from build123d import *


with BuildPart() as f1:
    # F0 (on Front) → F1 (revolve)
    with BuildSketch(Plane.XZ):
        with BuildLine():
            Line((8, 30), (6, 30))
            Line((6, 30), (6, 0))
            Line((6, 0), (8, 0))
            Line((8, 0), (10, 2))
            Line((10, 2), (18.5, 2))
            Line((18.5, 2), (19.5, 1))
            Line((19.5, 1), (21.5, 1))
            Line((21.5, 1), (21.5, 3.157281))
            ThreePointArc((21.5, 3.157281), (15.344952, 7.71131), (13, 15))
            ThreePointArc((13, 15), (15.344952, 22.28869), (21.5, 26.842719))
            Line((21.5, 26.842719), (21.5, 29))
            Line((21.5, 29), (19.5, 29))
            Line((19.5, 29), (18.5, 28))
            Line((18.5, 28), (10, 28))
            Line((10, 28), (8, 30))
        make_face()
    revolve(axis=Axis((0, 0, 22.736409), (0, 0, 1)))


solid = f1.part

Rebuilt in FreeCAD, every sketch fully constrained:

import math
import FreeCAD as App
import Part
import Sketcher

doc = App.newDocument("Part")
params = doc.addObject("Spreadsheet::Sheet", "Params")
for row, (alias, value) in enumerate([
    ("sketch1_radius", "12.499999 mm"),
    ("sketch1_width", "2 mm"),
    ("sketch1_height", "30 mm"),
    ("sketch1_width2", "8.5 mm"),
    ("revolution_angle", "360 deg"),
], start=1):
    params.set(f"A{row}", alias)
    params.set(f"B{row}", "=" + value)
    params.setAlias(f"B{row}", alias)

body = doc.addObject("PartDesign::Body", "Body")

sketch1 = body.newObject("Sketcher::SketchObject", "Sketch")
sketch1.AttachmentSupport = (doc.getObject("XZ_Plane"), [""])
sketch1.MapMode = "FlatFace"
sketch1.addGeometry(Part.LineSegment(App.Vector(8, 30, 0), App.Vector(6, 30, 0)), False)
sketch1.addGeometry(Part.LineSegment(App.Vector(6, 30, 0), App.Vector(6, 0, 0)), False)
sketch1.addGeometry(Part.LineSegment(App.Vector(6, 0, 0), App.Vector(8, 0, 0)), False)
sketch1.addGeometry(Part.LineSegment(App.Vector(8, 0, 0), App.Vector(10, 2, 0)), False)
sketch1.addGeometry(Part.LineSegment(App.Vector(10, 2, 0), App.Vector(18.5, 2, 0)), False)
sketch1.addGeometry(Part.LineSegment(App.Vector(18.5, 2, 0), App.Vector(19.5, 1, 0)), False)
sketch1.addGeometry(Part.LineSegment(App.Vector(19.5, 1, 0), App.Vector(21.5, 1, 0)), False)
sketch1.addGeometry(Part.LineSegment(App.Vector(21.5, 1, 0), App.Vector(21.5, 3.2, 0)), False)
sketch1.addGeometry(Part.ArcOfCircle(Part.Circle(App.Vector(25.5, 15, 0), App.Vector(0, 0, 1), 12.5), math.radians(180), math.radians(251)), False)
sketch1.addGeometry(Part.ArcOfCircle(Part.Circle(App.Vector(25.5, 15, 0), App.Vector(0, 0, 1), 12.5), math.radians(109), math.radians(180)), False)
sketch1.addGeometry(Part.LineSegment(App.Vector(21.5, 26.8, 0), App.Vector(21.5, 29, 0)), False)
sketch1.addGeometry(Part.LineSegment(App.Vector(21.5, 29, 0), App.Vector(19.5, 29, 0)), False)
sketch1.addGeometry(Part.LineSegment(App.Vector(19.5, 29, 0), App.Vector(18.5, 28, 0)), False)
sketch1.addGeometry(Part.LineSegment(App.Vector(18.5, 28, 0), App.Vector(10, 28, 0)), False)
sketch1.addGeometry(Part.LineSegment(App.Vector(10, 28, 0), App.Vector(8, 30, 0)), False)
sketch1.addConstraint(Sketcher.Constraint("Coincident", 0, 2, 1, 1))
sketch1.addConstraint(Sketcher.Constraint("Coincident", 1, 2, 2, 1))
sketch1.addConstraint(Sketcher.Constraint("Coincident", 2, 2, 3, 1))
sketch1.addConstraint(Sketcher.Constraint("Coincident", 3, 2, 4, 1))
sketch1.addConstraint(Sketcher.Constraint("Coincident", 4, 2, 5, 1))
sketch1.addConstraint(Sketcher.Constraint("Coincident", 5, 2, 6, 1))
sketch1.addConstraint(Sketcher.Constraint("Coincident", 6, 2, 7, 1))
sketch1.addConstraint(Sketcher.Constraint("Coincident", 7, 2, 8, 2))
sketch1.addConstraint(Sketcher.Constraint("Tangent", 8, 1, 9, 2))
sketch1.addConstraint(Sketcher.Constraint("Coincident", 9, 1, 10, 1))
sketch1.addConstraint(Sketcher.Constraint("Coincident", 10, 2, 11, 1))
sketch1.addConstraint(Sketcher.Constraint("Coincident", 11, 2, 12, 1))
sketch1.addConstraint(Sketcher.Constraint("Coincident", 12, 2, 13, 1))
sketch1.addConstraint(Sketcher.Constraint("Coincident", 13, 2, 14, 1))
sketch1.addConstraint(Sketcher.Constraint("Coincident", 14, 2, 0, 1))
sketch1.addConstraint(Sketcher.Constraint("Horizontal", 0))
sketch1.addConstraint(Sketcher.Constraint("Vertical", 1))
sketch1.addConstraint(Sketcher.Constraint("Horizontal", 2))
sketch1.addConstraint(Sketcher.Constraint("Horizontal", 4))
sketch1.addConstraint(Sketcher.Constraint("Horizontal", 6))
sketch1.addConstraint(Sketcher.Constraint("Vertical", 7))
sketch1.addConstraint(Sketcher.Constraint("Vertical", 10))
sketch1.addConstraint(Sketcher.Constraint("Horizontal", 11))
sketch1.addConstraint(Sketcher.Constraint("Horizontal", 13))
sketch1.addConstraint(Sketcher.Constraint("Equal", 8, 9))
sketch1.addConstraint(Sketcher.Constraint("PointOnObject", 1, 2, -1))
sketch1.addConstraint(Sketcher.Constraint("Perpendicular", 3, 5))
sketch1.addConstraint(Sketcher.Constraint("Perpendicular", 5, 12))
sketch1.addConstraint(Sketcher.Constraint("Perpendicular", 12, 14))
sketch1.addConstraint(Sketcher.Constraint("Horizontal", 9, 3, 8, 1))
sketch1.addConstraint(Sketcher.Constraint("Vertical", 7, 2, 9, 1))
sketch1.addConstraint(Sketcher.Constraint("Vertical", 5, 2, 11, 2))
sketch1.addConstraint(Sketcher.Constraint("Vertical", 4, 2, 12, 2))
sketch1.addConstraint(Sketcher.Constraint("Vertical", 3, 2, 13, 2))
sketch1.addConstraint(Sketcher.Constraint("Vertical", 2, 2, 14, 2))
sketch1.addConstraint(Sketcher.Constraint("Equal", 2, 6))
sketch1.addConstraint(Sketcher.Constraint("Equal", 7, 10))
sketch1.addConstraint(Sketcher.Constraint("Equal", 5, 12))
sketch1.addConstraint(Sketcher.Constraint("Radius", 8, 12.499999))
sketch1.addConstraint(Sketcher.Constraint("DistanceX", 0, 2, 0, 1, 2.0))
sketch1.addConstraint(Sketcher.Constraint("DistanceY", 1, 2, 1, 1, 30.0))
sketch1.addConstraint(Sketcher.Constraint("DistanceX", 4, 1, 4, 2, 8.5))
sketch1.addConstraint(Sketcher.Constraint("DistanceX", -1, 1, 0, 2, 6.0))
sketch1.addConstraint(Sketcher.Constraint("DistanceX", -1, 1, 3, 2, 10.0))
sketch1.addConstraint(Sketcher.Constraint("DistanceY", -1, 1, 5, 2, 1.0))
sketch1.addConstraint(Sketcher.Constraint("DistanceX", -1, 1, 8, 1, 13.0))
sketch1.setExpression("Constraints[38]", "Params.sketch1_radius")
sketch1.setExpression("Constraints[39]", "Params.sketch1_width")
sketch1.setExpression("Constraints[40]", "Params.sketch1_height")
sketch1.setExpression("Constraints[41]", "Params.sketch1_width2")
revolution = body.newObject("PartDesign::Revolution", "Revolution")
revolution.Profile = sketch1
revolution.ReferenceAxis = (sketch1, ["V_Axis"])
revolution.setExpression("Angle", "Params.revolution_angle")

doc.recompute()
